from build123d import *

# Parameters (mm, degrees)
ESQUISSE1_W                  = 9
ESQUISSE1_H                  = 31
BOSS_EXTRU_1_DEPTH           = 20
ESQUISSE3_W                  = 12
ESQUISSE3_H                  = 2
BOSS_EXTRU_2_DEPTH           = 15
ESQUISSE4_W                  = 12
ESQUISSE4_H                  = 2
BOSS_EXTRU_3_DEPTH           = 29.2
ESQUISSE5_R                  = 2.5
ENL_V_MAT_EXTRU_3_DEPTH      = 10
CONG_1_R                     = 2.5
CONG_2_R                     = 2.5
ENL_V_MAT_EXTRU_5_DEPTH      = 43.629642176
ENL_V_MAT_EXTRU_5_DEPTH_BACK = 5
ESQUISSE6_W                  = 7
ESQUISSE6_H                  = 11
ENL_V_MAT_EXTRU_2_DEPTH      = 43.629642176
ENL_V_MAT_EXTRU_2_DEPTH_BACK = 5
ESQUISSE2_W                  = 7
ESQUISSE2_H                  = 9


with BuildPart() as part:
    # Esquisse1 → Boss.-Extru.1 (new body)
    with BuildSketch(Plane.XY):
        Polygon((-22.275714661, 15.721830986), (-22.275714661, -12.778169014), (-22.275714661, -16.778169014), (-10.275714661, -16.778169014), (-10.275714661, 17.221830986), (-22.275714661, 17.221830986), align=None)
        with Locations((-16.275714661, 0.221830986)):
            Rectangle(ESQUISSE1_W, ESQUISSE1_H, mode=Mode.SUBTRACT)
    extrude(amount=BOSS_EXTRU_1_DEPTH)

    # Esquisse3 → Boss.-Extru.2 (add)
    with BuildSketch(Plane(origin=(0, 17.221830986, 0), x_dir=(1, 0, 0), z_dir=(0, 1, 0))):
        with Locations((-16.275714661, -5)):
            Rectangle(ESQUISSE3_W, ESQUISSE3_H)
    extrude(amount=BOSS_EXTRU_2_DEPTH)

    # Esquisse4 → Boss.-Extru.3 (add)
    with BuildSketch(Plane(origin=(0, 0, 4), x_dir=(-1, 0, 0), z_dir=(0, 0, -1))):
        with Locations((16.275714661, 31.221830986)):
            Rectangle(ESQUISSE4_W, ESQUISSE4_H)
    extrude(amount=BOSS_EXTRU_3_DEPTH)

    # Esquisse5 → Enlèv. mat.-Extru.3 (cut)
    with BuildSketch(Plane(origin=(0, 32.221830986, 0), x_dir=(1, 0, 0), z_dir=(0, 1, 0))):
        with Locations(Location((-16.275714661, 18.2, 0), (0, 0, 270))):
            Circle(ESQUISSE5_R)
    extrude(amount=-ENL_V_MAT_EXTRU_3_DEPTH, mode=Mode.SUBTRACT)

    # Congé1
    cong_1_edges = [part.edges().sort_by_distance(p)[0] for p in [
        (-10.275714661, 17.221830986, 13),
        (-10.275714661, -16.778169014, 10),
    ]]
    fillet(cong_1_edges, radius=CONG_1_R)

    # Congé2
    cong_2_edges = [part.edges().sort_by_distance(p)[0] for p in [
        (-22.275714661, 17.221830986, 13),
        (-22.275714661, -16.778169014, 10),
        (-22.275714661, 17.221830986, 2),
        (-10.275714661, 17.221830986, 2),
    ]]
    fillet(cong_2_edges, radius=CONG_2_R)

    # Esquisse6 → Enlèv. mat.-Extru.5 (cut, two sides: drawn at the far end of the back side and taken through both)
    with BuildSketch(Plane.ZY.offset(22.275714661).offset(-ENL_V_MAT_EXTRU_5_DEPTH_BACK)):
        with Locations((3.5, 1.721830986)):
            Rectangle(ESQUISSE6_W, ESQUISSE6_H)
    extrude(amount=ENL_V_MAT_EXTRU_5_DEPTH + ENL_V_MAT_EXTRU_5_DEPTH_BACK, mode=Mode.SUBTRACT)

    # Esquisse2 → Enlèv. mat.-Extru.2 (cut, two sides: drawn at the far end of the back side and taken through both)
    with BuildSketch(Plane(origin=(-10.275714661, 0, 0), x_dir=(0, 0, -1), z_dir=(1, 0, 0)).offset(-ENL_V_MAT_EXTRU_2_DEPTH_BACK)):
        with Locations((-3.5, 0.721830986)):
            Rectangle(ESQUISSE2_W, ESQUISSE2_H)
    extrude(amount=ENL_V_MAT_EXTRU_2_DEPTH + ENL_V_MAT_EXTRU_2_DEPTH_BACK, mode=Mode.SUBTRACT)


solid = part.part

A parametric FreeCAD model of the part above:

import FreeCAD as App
import Part
import Sketcher
Q = App.Units.Quantity


def edges_at(feature, points):
    """Names of the edges that pass closest to the given points."""
    edges = feature.Shape.Edges
    near = lambda p: min(range(len(edges)), key=lambda i: edges[i].distToShape(Part.Vertex(*p))[0])
    return sorted({f"Edge{near(p) + 1}" for p in points})

doc = App.newDocument("Part")
body = doc.addObject("PartDesign::Body", "Body")

sketch1 = body.newObject("Sketcher::SketchObject", "Sketch")
sketch1.AttachmentSupport = (doc.getObject("XY_Plane"), [""])
sketch1.MapMode = "FlatFace"
sketch1.addGeometry([
    Part.LineSegment(App.Vector(-22, -17, 0), App.Vector(-10, -17, 0)),
    Part.LineSegment(App.Vector(-10, -17, 0), App.Vector(-10, 17, 0)),
    Part.LineSegment(App.Vector(-10, 17, 0), App.Vector(-22, 17, 0)),
    Part.LineSegment(App.Vector(-22, 17, 0), App.Vector(-22, -17, 0)),
    Part.LineSegment(App.Vector(-12, -15, 0), App.Vector(-21, -15, 0)),
    Part.LineSegment(App.Vector(-21, -15, 0), App.Vector(-21, 16, 0)),
    Part.LineSegment(App.Vector(-21, 16, 0), App.Vector(-12, 16, 0)),
    Part.LineSegment(App.Vector(-12, 16, 0), App.Vector(-12, -15, 0)),
], False)
sketch1.addConstraint([
    Sketcher.Constraint("Coincident", 0, 2, 1, 1),
    Sketcher.Constraint("Coincident", 1, 2, 2, 1),
    Sketcher.Constraint("Coincident", 2, 2, 3, 1),
    Sketcher.Constraint("Coincident", 3, 2, 0, 1),
    Sketcher.Constraint("Coincident", 4, 2, 5, 1),
    Sketcher.Constraint("Coincident", 5, 2, 6, 1),
    Sketcher.Constraint("Coincident", 6, 2, 7, 1),
    Sketcher.Constraint("Coincident", 7, 2, 4, 1),
    Sketcher.Constraint("Horizontal", 0),
    Sketcher.Constraint("Vertical", 1),
    Sketcher.Constraint("Horizontal", 2),
    Sketcher.Constraint("Vertical", 3),
    Sketcher.Constraint("Horizontal", 4),
    Sketcher.Constraint("Vertical", 5),
    Sketcher.Constraint("Horizontal", 6),
    Sketcher.Constraint("Vertical", 7),
    Sketcher.Constraint("DistanceX", 0, 1, 0, 2, Q("12 mm")),
    Sketcher.Constraint("DistanceX", 4, 2, 4, 1, Q("9 mm")),
    Sketcher.Constraint("DistanceY", 1, 1, 1, 2, Q("34 mm")),
    Sketcher.Constraint("DistanceY", 5, 1, 5, 2, Q("31 mm")),
    Sketcher.Constraint("DistanceX", 3, 2, 4, 2, Q("1.5 mm")),
    Sketcher.Constraint("DistanceY", 3, 2, 4, 2, Q("1.5 mm")),
    Sketcher.Constraint("DistanceY", 0, 2, -1, 1, Q("16.778169 mm")),
    Sketcher.Constraint("DistanceX", 0, 2, -1, 1, Q("10.275715 mm")),
])
pad1 = body.newObject("PartDesign::Pad", "Pad")
pad1.Profile = sketch1
pad1.Length = 20

sketch2 = body.newObject("Sketcher::SketchObject", "Sketch001")
sketch2.AttachmentSupport = (doc.getObject("XZ_Plane"), [""])
sketch2.MapMode = "FlatFace"
sketch2.AttachmentOffset = App.Placement(App.Vector(0, 0, -17.221831), App.Rotation())
sketch2.addGeometry([
    Part.LineSegment(App.Vector(-22.3, 4, 0), App.Vector(-22.3, 6, 0)),
    Part.LineSegment(App.Vector(-22.3, 6, 0), App.Vector(-10.3, 6, 0)),
    Part.LineSegment(App.Vector(-10.3, 6, 0), App.Vector(-10.3, 4, 0)),
    Part.LineSegment(App.Vector(-10.3, 4, 0), App.Vector(-22.3, 4, 0)),
], False)
sketch2.addConstraint([
    Sketcher.Constraint("Coincident", 0, 2, 1, 1),
    Sketcher.Constraint("Coincident", 1, 2, 2, 1),
    Sketcher.Constraint("Coincident", 2, 2, 3, 1),
    Sketcher.Constraint("Coincident", 3, 2, 0, 1),
    Sketcher.Constraint("Vertical", 0),
    Sketcher.Constraint("Horizontal", 1),
    Sketcher.Constraint("Vertical", 2),
    Sketcher.Constraint("Horizontal", 3),
    Sketcher.Constraint("DistanceX", 1, 1, 1, 2, Q("12 mm")),
    Sketcher.Constraint("DistanceY", 0, 1, 0, 2, Q("2 mm")),
    Sketcher.Constraint("DistanceY", -1, 1, 0, 2, Q("6 mm")),
    Sketcher.Constraint("DistanceX", 0, 2, -1, 1, Q("22.275715 mm")),
])
pad2 = body.newObject("PartDesign::Pad", "Pad001")
pad2.Profile = sketch2
pad2.Length = 15
pad2.Reversed = True

sketch3 = body.newObject("Sketcher::SketchObject", "Sketch002")
sketch3.AttachmentSupport = (doc.getObject("XY_Plane"), [""])
sketch3.MapMode = "FlatFace"
sketch3.AttachmentOffset = App.Placement(App.Vector(0, 0, 4), App.Rotation())
sketch3.addGeometry([
    Part.LineSegment(App.Vector(-10.3, 32.2, 0), App.Vector(-10.3, 30.2, 0)),
    Part.LineSegment(App.Vector(-10.3, 30.2, 0), App.Vector(-22.3, 30.2, 0)),
    Part.LineSegment(App.Vector(-22.3, 30.2, 0), App.Vector(-22.3, 32.2, 0)),
    Part.LineSegment(App.Vector(-22.3, 32.2, 0), App.Vector(-10.3, 32.2, 0)),
], False)
sketch3.addConstraint([
    Sketcher.Constraint("Coincident", 0, 2, 1, 1),
    Sketcher.Constraint("Coincident", 1, 2, 2, 1),
    Sketcher.Constraint("Coincident", 2, 2, 3, 1),
    Sketcher.Constraint("Coincident", 3, 2, 0, 1),
    Sketcher.Constraint("Vertical", 0),
    Sketcher.Constraint("Horizontal", 1),
    Sketcher.Constraint("Vertical", 2),
    Sketcher.Constraint("Horizontal", 3),
    Sketcher.Constraint("DistanceX", 1, 2, 1, 1, Q("12 mm")),
    Sketcher.Constraint("DistanceY", 0, 2, 0, 1, Q("2 mm")),
    Sketcher.Constraint("DistanceY", -1, 1, 0, 2, Q("30.221831 mm")),
    Sketcher.Constraint("DistanceX", 0, 2, -1, 1, Q("10.275715 mm")),
])
pad3 = body.newObject("PartDesign::Pad", "Pad002")
pad3.Profile = sketch3
pad3.Length = 29.2
pad3.Reversed = True

sketch4 = body.newObject("Sketcher::SketchObject", "Sketch003")
sketch4.AttachmentSupport = (doc.getObject("XZ_Plane"), [""])
sketch4.MapMode = "FlatFace"
sketch4.AttachmentOffset = App.Placement(App.Vector(0, 0, -32.221831), App.Rotation())
sketch4.addGeometry(Part.Circle(App.Vector(-16.3, -18.2, 0), App.Vector(0, 0, 1), 2.5), False)
sketch4.addConstraint([
    Sketcher.Constraint("Diameter", 0, Q("5 mm")),
    Sketcher.Constraint("DistanceY", 0, 3, -1, 1, Q("18.2 mm")),
    Sketcher.Constraint("DistanceX", 0, 3, -1, 1, Q("16.275715 mm")),
])
pocket1 = body.newObject("PartDesign::Pocket", "Pocket")
pocket1.Profile = sketch4
pocket1.Length = 10
pocket1.Reversed = True
doc.recompute()

fillet = body.newObject("PartDesign::Fillet", "Fillet")
fillet.Base = (pocket1, edges_at(pocket1, [(-10.276, 17.222, 13), (-10.276, -16.778, 10)]))
fillet.Radius = 2.5
doc.recompute()

fillet2 = body.newObject("PartDesign::Fillet", "Fillet001")
fillet2.Base = (fillet, edges_at(fillet, [
    (-22.276, 17.222, 13),
    (-22.276, -16.778, 10),
    (-22.276, 17.222, 2),
    (-10.276, 17.222, 2),
]))
fillet2.Radius = 2.5

sketch5 = body.newObject("Sketcher::SketchObject", "Sketch004")
sketch5.AttachmentSupport = (doc.getObject("YZ_Plane"), [""])
sketch5.MapMode = "FlatFace"
sketch5.AttachmentOffset = App.Placement(App.Vector(0, 0, -22.275715), App.Rotation())
sketch5.addGeometry([
    Part.LineSegment(App.Vector(7, 0, 0), App.Vector(-4, 0, 0)),
    Part.LineSegment(App.Vector(-4, 0, 0), App.Vector(-4, 7, 0)),
    Part.LineSegment(App.Vector(-4, 7, 0), App.Vector(7, 7, 0)),
    Part.LineSegment(App.Vector(7, 7, 0), App.Vector(7, 0, 0)),
], False)
sketch5.addConstraint([
    Sketcher.Constraint("Coincident", 0, 2, 1, 1),
    Sketcher.Constraint("Coincident", 1, 2, 2, 1),
    Sketcher.Constraint("Coincident", 2, 2, 3, 1),
    Sketcher.Constraint("Coincident", 3, 2, 0, 1),
    Sketcher.Constraint("Horizontal", 0),
    Sketcher.Constraint("Vertical", 1),
    Sketcher.Constraint("Horizontal", 2),
    Sketcher.Constraint("Vertical", 3),
    Sketcher.Constraint("PointOnObject", 0, 2, -1),
    Sketcher.Constraint("DistanceX", 0, 2, 0, 1, Q("11 mm")),
    Sketcher.Constraint("DistanceY", 1, 1, 1, 2, Q("7 mm")),
    Sketcher.Constraint("DistanceX", 0, 2, -1, 1, Q("3.778169 mm")),
])
pocket2 = body.newObject("PartDesign::Pocket", "Pocket001")
pocket2.Profile = sketch5
pocket2.Type = "TwoLengths"
pocket2.Length = 43.629642
pocket2.Length2 = 5

sketch6 = body.newObject("Sketcher::SketchObject", "Sketch005")
sketch6.AttachmentSupport = (doc.getObject("YZ_Plane"), [""])
sketch6.MapMode = "FlatFace"
sketch6.AttachmentOffset = App.Placement(App.Vector(0, 0, -10.275715), App.Rotation())
sketch6.addGeometry([
    Part.LineSegment(App.Vector(5, 7, 0), App.Vector(-4, 7, 0)),
    Part.LineSegment(App.Vector(-4, 7, 0), App.Vector(-4, 0, 0)),
    Part.LineSegment(App.Vector(-4, 0, 0), App.Vector(5, 0, 0)),
    Part.LineSegment(App.Vector(5, 0, 0), App.Vector(5, 7, 0)),
], False)
sketch6.addConstraint([
    Sketcher.Constraint("Coincident", 0, 2, 1, 1),
    Sketcher.Constraint("Coincident", 1, 2, 2, 1),
    Sketcher.Constraint("Coincident", 2, 2, 3, 1),
    Sketcher.Constraint("Coincident", 3, 2, 0, 1),
    Sketcher.Constraint("Horizontal", 0),
    Sketcher.Constraint("Vertical", 1),
    Sketcher.Constraint("Horizontal", 2),
    Sketcher.Constraint("Vertical", 3),
    Sketcher.Constraint("PointOnObject", 1, 2, -1),
    Sketcher.Constraint("DistanceX", 0, 2, 0, 1, Q("9 mm")),
    Sketcher.Constraint("DistanceY", 1, 2, 1, 1, Q("7 mm")),
    Sketcher.Constraint("DistanceX", 0, 2, -1, 1, Q("3.778169 mm")),
])
pocket3 = body.newObject("PartDesign::Pocket", "Pocket002")
pocket3.Profile = sketch6
pocket3.Type = "ThroughAll"
pocket3.Midplane = True

doc.recompute()
